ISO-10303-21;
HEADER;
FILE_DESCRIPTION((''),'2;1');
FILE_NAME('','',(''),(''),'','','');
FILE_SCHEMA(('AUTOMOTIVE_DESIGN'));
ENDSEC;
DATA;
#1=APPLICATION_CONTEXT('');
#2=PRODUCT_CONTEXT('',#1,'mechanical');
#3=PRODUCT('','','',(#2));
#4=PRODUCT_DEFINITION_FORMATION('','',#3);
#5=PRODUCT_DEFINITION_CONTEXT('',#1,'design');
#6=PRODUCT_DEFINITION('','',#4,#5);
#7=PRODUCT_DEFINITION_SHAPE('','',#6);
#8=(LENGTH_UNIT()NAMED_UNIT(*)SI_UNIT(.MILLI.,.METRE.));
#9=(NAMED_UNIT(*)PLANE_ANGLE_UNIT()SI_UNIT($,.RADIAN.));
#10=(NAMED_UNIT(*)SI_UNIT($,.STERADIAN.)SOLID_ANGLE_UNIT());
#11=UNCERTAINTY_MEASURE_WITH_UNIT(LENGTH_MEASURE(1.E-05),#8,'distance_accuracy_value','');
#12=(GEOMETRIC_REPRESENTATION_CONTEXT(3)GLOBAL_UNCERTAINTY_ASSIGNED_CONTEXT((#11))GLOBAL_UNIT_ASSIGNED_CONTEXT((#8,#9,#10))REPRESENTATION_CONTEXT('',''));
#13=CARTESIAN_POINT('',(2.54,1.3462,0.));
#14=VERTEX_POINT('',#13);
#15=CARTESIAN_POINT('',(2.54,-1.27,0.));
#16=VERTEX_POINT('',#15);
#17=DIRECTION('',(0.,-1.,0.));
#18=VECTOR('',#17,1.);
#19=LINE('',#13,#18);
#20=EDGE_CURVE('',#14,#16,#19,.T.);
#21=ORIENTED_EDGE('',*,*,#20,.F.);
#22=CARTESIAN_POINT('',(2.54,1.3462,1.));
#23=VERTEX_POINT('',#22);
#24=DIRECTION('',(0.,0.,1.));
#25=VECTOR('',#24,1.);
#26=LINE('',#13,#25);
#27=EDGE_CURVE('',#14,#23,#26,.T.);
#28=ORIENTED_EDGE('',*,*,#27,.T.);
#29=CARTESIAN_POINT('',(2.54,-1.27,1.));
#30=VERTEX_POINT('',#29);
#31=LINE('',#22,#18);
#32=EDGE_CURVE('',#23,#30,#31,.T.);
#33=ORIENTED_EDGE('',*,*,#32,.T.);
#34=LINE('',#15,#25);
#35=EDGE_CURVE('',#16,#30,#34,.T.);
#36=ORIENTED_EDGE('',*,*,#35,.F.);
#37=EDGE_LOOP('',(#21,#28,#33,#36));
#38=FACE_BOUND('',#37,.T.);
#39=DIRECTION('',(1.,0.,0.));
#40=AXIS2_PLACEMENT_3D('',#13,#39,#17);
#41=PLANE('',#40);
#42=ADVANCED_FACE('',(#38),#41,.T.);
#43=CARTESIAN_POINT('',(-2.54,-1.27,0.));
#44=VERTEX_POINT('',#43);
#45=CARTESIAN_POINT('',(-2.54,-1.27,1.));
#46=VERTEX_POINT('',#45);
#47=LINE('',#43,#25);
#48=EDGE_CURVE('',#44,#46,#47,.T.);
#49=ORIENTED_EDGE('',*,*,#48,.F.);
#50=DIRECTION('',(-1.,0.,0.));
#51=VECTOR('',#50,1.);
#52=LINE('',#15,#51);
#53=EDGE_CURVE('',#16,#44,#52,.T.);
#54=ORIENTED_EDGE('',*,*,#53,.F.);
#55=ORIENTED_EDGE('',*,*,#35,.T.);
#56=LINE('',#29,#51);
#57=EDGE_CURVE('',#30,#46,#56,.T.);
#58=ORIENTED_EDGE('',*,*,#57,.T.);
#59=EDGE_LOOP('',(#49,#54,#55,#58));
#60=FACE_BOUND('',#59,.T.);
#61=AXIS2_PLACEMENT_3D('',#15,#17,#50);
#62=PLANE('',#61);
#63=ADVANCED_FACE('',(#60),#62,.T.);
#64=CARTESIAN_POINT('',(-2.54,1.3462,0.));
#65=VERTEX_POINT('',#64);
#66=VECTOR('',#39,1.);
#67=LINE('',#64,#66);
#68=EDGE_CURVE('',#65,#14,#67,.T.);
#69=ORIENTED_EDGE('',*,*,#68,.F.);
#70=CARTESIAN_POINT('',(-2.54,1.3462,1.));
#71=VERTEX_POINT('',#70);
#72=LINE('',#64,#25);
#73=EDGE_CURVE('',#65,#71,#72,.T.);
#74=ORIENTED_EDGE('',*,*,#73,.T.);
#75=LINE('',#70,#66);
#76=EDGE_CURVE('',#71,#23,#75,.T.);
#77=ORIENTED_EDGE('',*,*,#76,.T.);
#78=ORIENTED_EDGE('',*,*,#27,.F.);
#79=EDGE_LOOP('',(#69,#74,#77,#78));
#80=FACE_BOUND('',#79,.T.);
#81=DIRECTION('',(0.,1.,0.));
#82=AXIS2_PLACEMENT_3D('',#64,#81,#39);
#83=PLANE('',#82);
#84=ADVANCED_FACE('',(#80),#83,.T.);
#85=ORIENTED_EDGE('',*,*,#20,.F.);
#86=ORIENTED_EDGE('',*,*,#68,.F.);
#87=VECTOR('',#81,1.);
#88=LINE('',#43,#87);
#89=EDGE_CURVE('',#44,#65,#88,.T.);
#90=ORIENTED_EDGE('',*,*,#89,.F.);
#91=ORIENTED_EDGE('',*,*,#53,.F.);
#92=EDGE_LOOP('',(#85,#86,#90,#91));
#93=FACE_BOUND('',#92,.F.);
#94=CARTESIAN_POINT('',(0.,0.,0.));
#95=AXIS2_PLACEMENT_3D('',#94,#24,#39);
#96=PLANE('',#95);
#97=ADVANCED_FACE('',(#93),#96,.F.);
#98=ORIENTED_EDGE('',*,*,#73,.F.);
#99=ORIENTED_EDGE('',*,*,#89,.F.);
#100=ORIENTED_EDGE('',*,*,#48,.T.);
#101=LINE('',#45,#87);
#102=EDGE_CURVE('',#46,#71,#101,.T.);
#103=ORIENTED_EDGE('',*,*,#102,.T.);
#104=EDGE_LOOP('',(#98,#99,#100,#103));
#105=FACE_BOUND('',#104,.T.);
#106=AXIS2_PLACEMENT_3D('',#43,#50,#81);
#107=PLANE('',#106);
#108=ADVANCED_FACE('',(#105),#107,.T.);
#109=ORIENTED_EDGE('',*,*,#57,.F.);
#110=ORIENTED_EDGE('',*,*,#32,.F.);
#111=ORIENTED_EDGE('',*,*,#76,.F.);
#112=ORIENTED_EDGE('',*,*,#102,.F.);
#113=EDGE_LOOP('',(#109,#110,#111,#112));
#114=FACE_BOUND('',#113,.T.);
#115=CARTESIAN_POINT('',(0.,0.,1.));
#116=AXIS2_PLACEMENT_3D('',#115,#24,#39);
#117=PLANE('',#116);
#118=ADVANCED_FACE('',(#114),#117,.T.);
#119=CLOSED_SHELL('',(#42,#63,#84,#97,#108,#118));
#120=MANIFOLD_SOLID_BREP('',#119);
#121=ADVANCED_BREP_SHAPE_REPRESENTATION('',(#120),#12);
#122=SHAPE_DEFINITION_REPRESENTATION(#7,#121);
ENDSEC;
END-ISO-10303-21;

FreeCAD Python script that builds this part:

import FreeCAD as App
import Part
import Sketcher

V = App.Vector
Q = App.Units.Quantity


def add_polygon(sketch, points):
    """Adds a closed chain of lines whose ends are joined by coincident constraints."""
    first, n = sketch.GeometryCount, len(points)
    for a, b in zip(points, points[1:] + points[:1]):
        sketch.addGeometry(Part.LineSegment(App.Vector(*a, 0), App.Vector(*b, 0)), False)
    for i in range(n):
        sketch.addConstraint(Sketcher.Constraint("Coincident", first + i, 2, first + (i + 1) % n, 1))

doc = App.newDocument("Part")
body = doc.addObject("PartDesign::Body", "Body")

sketch1 = body.newObject("Sketcher::SketchObject", "Sketch")
sketch1.AttachmentSupport = (doc.getObject("XY_Plane"), [""])
sketch1.MapMode = "FlatFace"
add_polygon(sketch1, [(2.54, 1.3462), (-2.54, 1.3462), (-2.54, -1.27), (2.54, -1.27)])
sketch1.addConstraint([
    Sketcher.Constraint("Horizontal", 0),
    Sketcher.Constraint("Vertical", 1),
    Sketcher.Constraint("Horizontal", 2),
    Sketcher.Constraint("Vertical", 3),
    Sketcher.Constraint("DistanceX", 0, 2, 0, 1, Q("0.2 in")),
    Sketcher.Constraint("DistanceX", 0, 2, -1, 1, Q("0.1 in")),
    Sketcher.Constraint("DistanceY", 1, 2, 1, 1, Q("0.103 in")),
    Sketcher.Constraint("DistanceY", 1, 2, -1, 1, Q("0.05 in")),
])
pad1 = body.newObject("PartDesign::Pad", "Pad")
pad1.Profile = sketch1
pad1.Length = 1

doc.recompute()
